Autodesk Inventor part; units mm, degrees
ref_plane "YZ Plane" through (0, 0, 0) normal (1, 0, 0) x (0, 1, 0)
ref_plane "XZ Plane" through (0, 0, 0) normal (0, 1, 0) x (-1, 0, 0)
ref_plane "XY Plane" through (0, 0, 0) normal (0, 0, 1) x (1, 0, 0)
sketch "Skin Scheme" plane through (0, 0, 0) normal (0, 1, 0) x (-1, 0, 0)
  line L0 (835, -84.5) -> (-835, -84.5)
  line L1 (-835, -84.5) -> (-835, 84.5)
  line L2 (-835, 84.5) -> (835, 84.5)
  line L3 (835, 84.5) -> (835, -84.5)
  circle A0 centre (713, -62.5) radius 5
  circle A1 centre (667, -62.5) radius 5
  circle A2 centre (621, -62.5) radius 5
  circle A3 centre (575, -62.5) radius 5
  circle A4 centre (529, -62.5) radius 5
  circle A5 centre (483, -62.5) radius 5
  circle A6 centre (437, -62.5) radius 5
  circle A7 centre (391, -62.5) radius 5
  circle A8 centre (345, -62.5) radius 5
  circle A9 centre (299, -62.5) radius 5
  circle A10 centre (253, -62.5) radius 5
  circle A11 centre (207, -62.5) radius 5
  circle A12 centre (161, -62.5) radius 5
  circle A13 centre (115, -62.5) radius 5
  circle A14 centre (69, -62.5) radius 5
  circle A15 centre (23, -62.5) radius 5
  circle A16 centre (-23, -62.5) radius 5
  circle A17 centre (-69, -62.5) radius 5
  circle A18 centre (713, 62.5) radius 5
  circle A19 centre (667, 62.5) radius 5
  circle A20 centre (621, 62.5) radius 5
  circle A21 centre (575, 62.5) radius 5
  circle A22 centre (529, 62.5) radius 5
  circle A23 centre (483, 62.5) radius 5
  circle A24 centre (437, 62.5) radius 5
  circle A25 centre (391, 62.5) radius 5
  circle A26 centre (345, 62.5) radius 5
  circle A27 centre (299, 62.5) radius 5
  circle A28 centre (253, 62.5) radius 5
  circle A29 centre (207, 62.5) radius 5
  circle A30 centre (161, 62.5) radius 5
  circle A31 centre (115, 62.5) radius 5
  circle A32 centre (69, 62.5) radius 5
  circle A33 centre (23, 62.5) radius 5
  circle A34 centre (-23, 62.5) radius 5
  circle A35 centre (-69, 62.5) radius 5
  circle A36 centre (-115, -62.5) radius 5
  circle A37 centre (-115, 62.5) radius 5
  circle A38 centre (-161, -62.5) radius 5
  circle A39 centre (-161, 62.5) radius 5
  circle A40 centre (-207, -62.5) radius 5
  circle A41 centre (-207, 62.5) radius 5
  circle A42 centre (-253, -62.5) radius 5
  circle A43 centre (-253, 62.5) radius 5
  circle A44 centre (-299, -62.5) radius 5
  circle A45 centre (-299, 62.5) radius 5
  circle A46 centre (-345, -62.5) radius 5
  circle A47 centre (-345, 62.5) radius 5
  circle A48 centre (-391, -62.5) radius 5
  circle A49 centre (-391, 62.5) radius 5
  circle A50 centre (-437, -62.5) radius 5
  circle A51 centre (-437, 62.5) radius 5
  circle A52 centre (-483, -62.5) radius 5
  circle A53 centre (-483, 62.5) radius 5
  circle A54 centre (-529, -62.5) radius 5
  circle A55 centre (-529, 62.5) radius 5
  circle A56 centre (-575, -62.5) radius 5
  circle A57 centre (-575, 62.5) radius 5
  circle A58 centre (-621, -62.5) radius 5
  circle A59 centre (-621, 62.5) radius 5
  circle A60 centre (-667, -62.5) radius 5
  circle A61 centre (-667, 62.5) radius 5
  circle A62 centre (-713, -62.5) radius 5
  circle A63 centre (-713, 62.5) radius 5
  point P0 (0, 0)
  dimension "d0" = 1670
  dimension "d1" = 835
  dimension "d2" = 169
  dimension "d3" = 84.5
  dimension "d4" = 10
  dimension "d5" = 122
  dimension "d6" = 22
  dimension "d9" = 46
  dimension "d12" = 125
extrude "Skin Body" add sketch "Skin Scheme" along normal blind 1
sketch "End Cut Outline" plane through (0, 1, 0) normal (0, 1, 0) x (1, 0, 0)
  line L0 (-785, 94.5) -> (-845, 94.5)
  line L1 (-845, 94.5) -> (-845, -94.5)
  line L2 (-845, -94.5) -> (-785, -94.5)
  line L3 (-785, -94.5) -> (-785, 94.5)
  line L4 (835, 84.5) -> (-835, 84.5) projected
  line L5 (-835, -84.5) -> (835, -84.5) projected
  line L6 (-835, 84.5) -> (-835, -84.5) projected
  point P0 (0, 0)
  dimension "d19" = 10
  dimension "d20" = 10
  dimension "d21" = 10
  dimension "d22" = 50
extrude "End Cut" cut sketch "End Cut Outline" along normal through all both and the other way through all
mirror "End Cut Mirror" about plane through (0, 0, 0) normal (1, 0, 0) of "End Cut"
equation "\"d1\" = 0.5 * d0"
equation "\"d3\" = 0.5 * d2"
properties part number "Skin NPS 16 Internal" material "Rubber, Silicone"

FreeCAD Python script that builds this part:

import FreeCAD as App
import Part
import Sketcher

doc = App.newDocument("Part")
body = doc.addObject("PartDesign::Body", "Body")

sketch1 = doc.addObject("Sketcher::SketchObject", "Sketch")
body.addObject(sketch1)
sketch1.AttachmentSupport = (doc.XZ_Plane, [""])
sketch1.MapMode = "FlatFace"
sketch1.addGeometry([
    Part.LineSegment(App.Vector(835, -84, 0), App.Vector(-835, -84, 0)),
    Part.LineSegment(App.Vector(-835, -84, 0), App.Vector(-835, 84, 0)),
    Part.LineSegment(App.Vector(-835, 84, 0), App.Vector(835, 84, 0)),
    Part.LineSegment(App.Vector(835, 84, 0), App.Vector(835, -84, 0)),
    Part.Circle(App.Vector(713, -62, 0), App.Vector(0, 0, 1), 5),
    Part.Circle(App.Vector(667, -62, 0), App.Vector(0, 0, 1), 5),
    Part.Circle(App.Vector(621, -62, 0), App.Vector(0, 0, 1), 5),
    Part.Circle(App.Vector(575, -62, 0), App.Vector(0, 0, 1), 5),
    Part.Circle(App.Vector(529, -62, 0), App.Vector(0, 0, 1), 5),
    Part.Circle(App.Vector(483, -62, 0), App.Vector(0, 0, 1), 5),
    Part.Circle(App.Vector(437, -62, 0), App.Vector(0, 0, 1), 5),
    Part.Circle(App.Vector(391, -62, 0), App.Vector(0, 0, 1), 5),
    Part.Circle(App.Vector(345, -62, 0), App.Vector(0, 0, 1), 5),
    Part.Circle(App.Vector(299, -62, 0), App.Vector(0, 0, 1), 5),
    Part.Circle(App.Vector(253, -62, 0), App.Vector(0, 0, 1), 5),
    Part.Circle(App.Vector(207, -62, 0), App.Vector(0, 0, 1), 5),
    Part.Circle(App.Vector(161, -62, 0), App.Vector(0, 0, 1), 5),
    Part.Circle(App.Vector(115, -62, 0), App.Vector(0, 0, 1), 5),
    Part.Circle(App.Vector(69, -62, 0), App.Vector(0, 0, 1), 5),
    Part.Circle(App.Vector(23, -62, 0), App.Vector(0, 0, 1), 5),
    Part.Circle(App.Vector(-23, -62, 0), App.Vector(0, 0, 1), 5),
    Part.Circle(App.Vector(-69, -62, 0), App.Vector(0, 0, 1), 5),
    Part.Circle(App.Vector(-115, -62, 0), App.Vector(0, 0, 1), 5),
    Part.Circle(App.Vector(-161, -62, 0), App.Vector(0, 0, 1), 5),
    Part.Circle(App.Vector(-207, -62, 0), App.Vector(0, 0, 1), 5),
    Part.Circle(App.Vector(-253, -62, 0), App.Vector(0, 0, 1), 5),
    Part.Circle(App.Vector(-299, -62, 0), App.Vector(0, 0, 1), 5),
    Part.Circle(App.Vector(-345, -62, 0), App.Vector(0, 0, 1), 5),
    Part.Circle(App.Vector(-391, -62, 0), App.Vector(0, 0, 1), 5),
    Part.Circle(App.Vector(-437, -62, 0), App.Vector(0, 0, 1), 5),
    Part.Circle(App.Vector(-483, -62, 0), App.Vector(0, 0, 1), 5),
    Part.Circle(App.Vector(-529, -62, 0), App.Vector(0, 0, 1), 5),
    Part.Circle(App.Vector(-575, -62, 0), App.Vector(0, 0, 1), 5),
    Part.Circle(App.Vector(-621, -62, 0), App.Vector(0, 0, 1), 5),
    Part.Circle(App.Vector(-667, -62, 0), App.Vector(0, 0, 1), 5),
    Part.Circle(App.Vector(-713, -62, 0), App.Vector(0, 0, 1), 5),
    Part.Circle(App.Vector(713, 62, 0), App.Vector(0, 0, 1), 5),
    Part.Circle(App.Vector(667, 62, 0), App.Vector(0, 0, 1), 5),
    Part.Circle(App.Vector(621, 62, 0), App.Vector(0, 0, 1), 5),
    Part.Circle(App.Vector(575, 62, 0), App.Vector(0, 0, 1), 5),
    Part.Circle(App.Vector(529, 62, 0), App.Vector(0, 0, 1), 5),
    Part.Circle(App.Vector(483, 62, 0), App.Vector(0, 0, 1), 5),
    Part.Circle(App.Vector(437, 62, 0), App.Vector(0, 0, 1), 5),
    Part.Circle(App.Vector(391, 62, 0), App.Vector(0, 0, 1), 5),
    Part.Circle(App.Vector(345, 62, 0), App.Vector(0, 0, 1), 5),
    Part.Circle(App.Vector(299, 62, 0), App.Vector(0, 0, 1), 5),
    Part.Circle(App.Vector(253, 62, 0), App.Vector(0, 0, 1), 5),
    Part.Circle(App.Vector(207, 62, 0), App.Vector(0, 0, 1), 5),
    Part.Circle(App.Vector(161, 62, 0), App.Vector(0, 0, 1), 5),
    Part.Circle(App.Vector(115, 62, 0), App.Vector(0, 0, 1), 5),
    Part.Circle(App.Vector(69, 62, 0), App.Vector(0, 0, 1), 5),
    Part.Circle(App.Vector(23, 62, 0), App.Vector(0, 0, 1), 5),
    Part.Circle(App.Vector(-23, 62, 0), App.Vector(0, 0, 1), 5),
    Part.Circle(App.Vector(-69, 62, 0), App.Vector(0, 0, 1), 5),
    Part.Circle(App.Vector(-115, 62, 0), App.Vector(0, 0, 1), 5),
    Part.Circle(App.Vector(-161, 62, 0), App.Vector(0, 0, 1), 5),
    Part.Circle(App.Vector(-207, 62, 0), App.Vector(0, 0, 1), 5),
    Part.Circle(App.Vector(-253, 62, 0), App.Vector(0, 0, 1), 5),
    Part.Circle(App.Vector(-299, 62, 0), App.Vector(0, 0, 1), 5),
    Part.Circle(App.Vector(-345, 62, 0), App.Vector(0, 0, 1), 5),
    Part.Circle(App.Vector(-391, 62, 0), App.Vector(0, 0, 1), 5),
    Part.Circle(App.Vector(-437, 62, 0), App.Vector(0, 0, 1), 5),
    Part.Circle(App.Vector(-483, 62, 0), App.Vector(0, 0, 1), 5),
    Part.Circle(App.Vector(-529, 62, 0), App.Vector(0, 0, 1), 5),
    Part.Circle(App.Vector(-575, 62, 0), App.Vector(0, 0, 1), 5),
    Part.Circle(App.Vector(-621, 62, 0), App.Vector(0, 0, 1), 5),
    Part.Circle(App.Vector(-667, 62, 0), App.Vector(0, 0, 1), 5),
    Part.Circle(App.Vector(-713, 62, 0), App.Vector(0, 0, 1), 5),
], False)
sketch1.addConstraint([
    Sketcher.Constraint("Coincident", 0, 2, 1, 1),
    Sketcher.Constraint("Coincident", 1, 2, 2, 1),
    Sketcher.Constraint("Coincident", 2, 2, 3, 1),
    Sketcher.Constraint("Coincident", 3, 2, 0, 1),
    Sketcher.Constraint("Horizontal", 0),
    Sketcher.Constraint("Vertical", 1),
    Sketcher.Constraint("Horizontal", 2),
    Sketcher.Constraint("Vertical", 3),
    Sketcher.Constraint("Equal", 4, 5),
    Sketcher.Constraint("Equal", 5, 6),
    Sketcher.Constraint("Equal", 6, 7),
    Sketcher.Constraint("Equal", 7, 8),
    Sketcher.Constraint("Equal", 8, 9),
    Sketcher.Constraint("Equal", 9, 10),
    Sketcher.Constraint("Equal", 10, 11),
    Sketcher.Constraint("Equal", 11, 12),
    Sketcher.Constraint("Equal", 12, 13),
    Sketcher.Constraint("Equal", 13, 14),
    Sketcher.Constraint("Equal", 14, 15),
    Sketcher.Constraint("Equal", 15, 16),
    Sketcher.Constraint("Equal", 16, 17),
    Sketcher.Constraint("Equal", 17, 18),
    Sketcher.Constraint("Equal", 18, 19),
    Sketcher.Constraint("Equal", 19, 20),
    Sketcher.Constraint("Equal", 20, 21),
    Sketcher.Constraint("Equal", 21, 22),
    Sketcher.Constraint("Equal", 22, 23),
    Sketcher.Constraint("Equal", 23, 24),
    Sketcher.Constraint("Equal", 24, 25),
    Sketcher.Constraint("Equal", 25, 26),
    Sketcher.Constraint("Equal", 26, 27),
    Sketcher.Constraint("Equal", 27, 28),
    Sketcher.Constraint("Equal", 28, 29),
    Sketcher.Constraint("Equal", 29, 30),
    Sketcher.Constraint("Equal", 30, 31),
    Sketcher.Constraint("Equal", 31, 32),
    Sketcher.Constraint("Equal", 32, 33),
    Sketcher.Constraint("Equal", 33, 34),
    Sketcher.Constraint("Equal", 34, 35),
    Sketcher.Constraint("Equal", 35, 36),
    Sketcher.Constraint("Equal", 36, 37),
    Sketcher.Constraint("Equal", 37, 38),
    Sketcher.Constraint("Equal", 38, 39),
    Sketcher.Constraint("Equal", 39, 40),
    Sketcher.Constraint("Equal", 40, 41),
    Sketcher.Constraint("Equal", 41, 42),
    Sketcher.Constraint("Equal", 42, 43),
    Sketcher.Constraint("Equal", 43, 44),
    Sketcher.Constraint("Equal", 44, 45),
    Sketcher.Constraint("Equal", 45, 46),
    Sketcher.Constraint("Equal", 46, 47),
    Sketcher.Constraint("Equal", 47, 48),
    Sketcher.Constraint("Equal", 48, 49),
    Sketcher.Constraint("Equal", 49, 50),
    Sketcher.Constraint("Equal", 50, 51),
    Sketcher.Constraint("Equal", 51, 52),
    Sketcher.Constraint("Equal", 52, 53),
    Sketcher.Constraint("Equal", 53, 54),
    Sketcher.Constraint("Equal", 54, 55),
    Sketcher.Constraint("Equal", 55, 56),
    Sketcher.Constraint("Equal", 56, 57),
    Sketcher.Constraint("Equal", 57, 58),
    Sketcher.Constraint("Equal", 58, 59),
    Sketcher.Constraint("Equal", 59, 60),
    Sketcher.Constraint("Equal", 60, 61),
    Sketcher.Constraint("Equal", 61, 62),
    Sketcher.Constraint("Equal", 62, 63),
    Sketcher.Constraint("Equal", 63, 64),
    Sketcher.Constraint("Equal", 64, 65),
    Sketcher.Constraint("Equal", 65, 66),
    Sketcher.Constraint("Equal", 66, 67),
    Sketcher.Constraint("Symmetric", 35, 3, 36, 3, -1, 1),
    Sketcher.Constraint("Symmetric", 34, 3, 37, 3, -1, 1),
    Sketcher.Constraint("Symmetric", 33, 3, 38, 3, -1, 1),
    Sketcher.Constraint("Symmetric", 32, 3, 39, 3, -1, 1),
    Sketcher.Constraint("Symmetric", 31, 3, 40, 3, -1, 1),
    Sketcher.Constraint("Symmetric", 30, 3, 41, 3, -1, 1),
    Sketcher.Constraint("Symmetric", 29, 3, 42, 3, -1, 1),
    Sketcher.Constraint("Symmetric", 28, 3, 43, 3, -1, 1),
    Sketcher.Constraint("Symmetric", 27, 3, 44, 3, -1, 1),
    Sketcher.Constraint("Symmetric", 26, 3, 45, 3, -1, 1),
    Sketcher.Constraint("Symmetric", 25, 3, 46, 3, -1, 1),
    Sketcher.Constraint("Symmetric", 24, 3, 47, 3, -1, 1),
    Sketcher.Constraint("Symmetric", 23, 3, 48, 3, -1, 1),
    Sketcher.Constraint("Symmetric", 22, 3, 49, 3, -1, 1),
    Sketcher.Constraint("Symmetric", 21, 3, 50, 3, -1, 1),
    Sketcher.Constraint("Symmetric", 20, 3, 51, 3, -1, 1),
    Sketcher.Constraint("Symmetric", 19, 3, 52, 3, -1, 1),
    Sketcher.Constraint("Symmetric", 18, 3, 53, 3, -1, 1),
    Sketcher.Constraint("Symmetric", 17, 3, 54, 3, -1, 1),
    Sketcher.Constraint("Symmetric", 16, 3, 55, 3, -1, 1),
    Sketcher.Constraint("Symmetric", 15, 3, 56, 3, -1, 1),
    Sketcher.Constraint("Symmetric", 14, 3, 57, 3, -1, 1),
    Sketcher.Constraint("Symmetric", 13, 3, 58, 3, -1, 1),
    Sketcher.Constraint("Symmetric", 12, 3, 59, 3, -1, 1),
    Sketcher.Constraint("Symmetric", 11, 3, 60, 3, -1, 1),
    Sketcher.Constraint("Symmetric", 10, 3, 61, 3, -1, 1),
    Sketcher.Constraint("Symmetric", 9, 3, 62, 3, -1, 1),
    Sketcher.Constraint("Symmetric", 8, 3, 63, 3, -1, 1),
    Sketcher.Constraint("Symmetric", 7, 3, 64, 3, -1, 1),
    Sketcher.Constraint("Symmetric", 6, 3, 65, 3, -1, 1),
    Sketcher.Constraint("Symmetric", 5, 3, 66, 3, -1, 1),
    Sketcher.Constraint("Symmetric", 4, 3, 67, 3, -1, 1),
    Sketcher.Constraint("Symmetric", 0, 2, 2, 2, -1, 1),
    Sketcher.Constraint("Symmetric", 19, 3, 20, 3, -2),
    Sketcher.Constraint("Symmetric", 18, 3, 21, 3, -2),
    Sketcher.Constraint("Symmetric", 17, 3, 22, 3, -2),
    Sketcher.Constraint("Symmetric", 16, 3, 23, 3, -2),
    Sketcher.Constraint("Symmetric", 15, 3, 24, 3, -2),
    Sketcher.Constraint("Symmetric", 14, 3, 25, 3, -2),
    Sketcher.Constraint("Symmetric", 13, 3, 26, 3, -2),
    Sketcher.Constraint("Symmetric", 12, 3, 27, 3, -2),
    Sketcher.Constraint("Symmetric", 11, 3, 28, 3, -2),
    Sketcher.Constraint("Symmetric", 10, 3, 29, 3, -2),
    Sketcher.Constraint("Symmetric", 9, 3, 30, 3, -2),
    Sketcher.Constraint("Symmetric", 8, 3, 31, 3, -2),
    Sketcher.Constraint("Symmetric", 7, 3, 32, 3, -2),
    Sketcher.Constraint("Symmetric", 6, 3, 33, 3, -2),
    Sketcher.Constraint("Symmetric", 5, 3, 34, 3, -2),
    Sketcher.Constraint("Symmetric", 4, 3, 35, 3, -2),
    Sketcher.Constraint("Horizontal", 4, 3, 5, 3),
    Sketcher.Constraint("Horizontal", 5, 3, 6, 3),
    Sketcher.Constraint("Horizontal", 6, 3, 7, 3),
    Sketcher.Constraint("Horizontal", 7, 3, 8, 3),
    Sketcher.Constraint("Horizontal", 8, 3, 9, 3),
    Sketcher.Constraint("Horizontal", 9, 3, 10, 3),
    Sketcher.Constraint("Horizontal", 10, 3, 11, 3),
    Sketcher.Constraint("Horizontal", 11, 3, 12, 3),
    Sketcher.Constraint("Horizontal", 12, 3, 13, 3),
    Sketcher.Constraint("Horizontal", 13, 3, 14, 3),
    Sketcher.Constraint("Horizontal", 14, 3, 15, 3),
    Sketcher.Constraint("Horizontal", 15, 3, 16, 3),
    Sketcher.Constraint("Horizontal", 16, 3, 17, 3),
    Sketcher.Constraint("Horizontal", 17, 3, 18, 3),
    Sketcher.Constraint("Horizontal", 18, 3, 19, 3),
    Sketcher.Constraint("Diameter", 4, 10.0),
    Sketcher.Constraint("DistanceX", 0, 2, 0, 1, 1670.0),
    Sketcher.Constraint("DistanceY", 1, 1, 1, 2, 169.0),
    Sketcher.Constraint("DistanceX", -1, 1, 4, 3, 713.0),
    Sketcher.Constraint("DistanceX", -1, 1, 5, 3, 667.0),
    Sketcher.Constraint("DistanceX", -1, 1, 6, 3, 621.0),
    Sketcher.Constraint("DistanceX", -1, 1, 7, 3, 575.0),
    Sketcher.Constraint("DistanceX", -1, 1, 8, 3, 529.0),
    Sketcher.Constraint("DistanceX", -1, 1, 9, 3, 483.0),
    Sketcher.Constraint("DistanceX", -1, 1, 10, 3, 437.0),
    Sketcher.Constraint("DistanceX", -1, 1, 11, 3, 391.0),
    Sketcher.Constraint("DistanceX", -1, 1, 12, 3, 345.0),
    Sketcher.Constraint("DistanceX", -1, 1, 13, 3, 299.0),
    Sketcher.Constraint("DistanceX", -1, 1, 14, 3, 253.0),
    Sketcher.Constraint("DistanceX", -1, 1, 15, 3, 207.0),
    Sketcher.Constraint("DistanceX", -1, 1, 16, 3, 161.0),
    Sketcher.Constraint("DistanceX", -1, 1, 17, 3, 115.0),
    Sketcher.Constraint("DistanceX", -1, 1, 18, 3, 69.0),
    Sketcher.Constraint("DistanceX", -1, 1, 19, 3, 23.0),
    Sketcher.Constraint("DistanceY", 4, 3, -1, 1, 62.5),
])
pad1 = doc.addObject("PartDesign::Pad", "Pad")
body.addObject(pad1)
pad1.Profile = sketch1
pad1.Length = 1
pad1.Reversed = True

sketch2 = doc.addObject("Sketcher::SketchObject", "Sketch001")
body.addObject(sketch2)
sketch2.AttachmentSupport = (doc.XZ_Plane, [""])
sketch2.MapMode = "FlatFace"
sketch2.AttachmentOffset = App.Placement(App.Vector(0, 0, -1), App.Rotation())
sketch2.addGeometry([
    Part.LineSegment(App.Vector(-785, -94, 0), App.Vector(-845, -94, 0)),
    Part.LineSegment(App.Vector(-845, -94, 0), App.Vector(-845, 94, 0)),
    Part.LineSegment(App.Vector(-845, 94, 0), App.Vector(-785, 94, 0)),
    Part.LineSegment(App.Vector(-785, 94, 0), App.Vector(-785, -94, 0)),
], False)
sketch2.addConstraint([
    Sketcher.Constraint("Coincident", 0, 2, 1, 1),
    Sketcher.Constraint("Coincident", 1, 2, 2, 1),
    Sketcher.Constraint("Coincident", 2, 2, 3, 1),
    Sketcher.Constraint("Coincident", 3, 2, 0, 1),
    Sketcher.Constraint("Horizontal", 0),
    Sketcher.Constraint("Vertical", 1),
    Sketcher.Constraint("Horizontal", 2),
    Sketcher.Constraint("Vertical", 3),
    Sketcher.Constraint("DistanceX", 0, 2, 0, 1, 60.0),
    Sketcher.Constraint("DistanceY", 1, 1, 1, 2, 189.0),
    Sketcher.Constraint("DistanceX", 0, 2, -1, 1, 845.0),
    Sketcher.Constraint("DistanceY", 0, 2, -1, 1, 94.5),
])
pocket1 = doc.addObject("PartDesign::Pocket", "Pocket")
body.addObject(pocket1)
pocket1.Profile = sketch2
pocket1.Type = "ThroughAll"
pocket1.Midplane = True
doc.recompute()

mirrored = doc.addObject("PartDesign::Mirrored", "Mirrored")
body.addObject(mirrored)
mirrored.Originals = [pocket1]
mirrored.MirrorPlane = (doc.YZ_Plane, [""])
body.Tip = mirrored

doc.recompute()
